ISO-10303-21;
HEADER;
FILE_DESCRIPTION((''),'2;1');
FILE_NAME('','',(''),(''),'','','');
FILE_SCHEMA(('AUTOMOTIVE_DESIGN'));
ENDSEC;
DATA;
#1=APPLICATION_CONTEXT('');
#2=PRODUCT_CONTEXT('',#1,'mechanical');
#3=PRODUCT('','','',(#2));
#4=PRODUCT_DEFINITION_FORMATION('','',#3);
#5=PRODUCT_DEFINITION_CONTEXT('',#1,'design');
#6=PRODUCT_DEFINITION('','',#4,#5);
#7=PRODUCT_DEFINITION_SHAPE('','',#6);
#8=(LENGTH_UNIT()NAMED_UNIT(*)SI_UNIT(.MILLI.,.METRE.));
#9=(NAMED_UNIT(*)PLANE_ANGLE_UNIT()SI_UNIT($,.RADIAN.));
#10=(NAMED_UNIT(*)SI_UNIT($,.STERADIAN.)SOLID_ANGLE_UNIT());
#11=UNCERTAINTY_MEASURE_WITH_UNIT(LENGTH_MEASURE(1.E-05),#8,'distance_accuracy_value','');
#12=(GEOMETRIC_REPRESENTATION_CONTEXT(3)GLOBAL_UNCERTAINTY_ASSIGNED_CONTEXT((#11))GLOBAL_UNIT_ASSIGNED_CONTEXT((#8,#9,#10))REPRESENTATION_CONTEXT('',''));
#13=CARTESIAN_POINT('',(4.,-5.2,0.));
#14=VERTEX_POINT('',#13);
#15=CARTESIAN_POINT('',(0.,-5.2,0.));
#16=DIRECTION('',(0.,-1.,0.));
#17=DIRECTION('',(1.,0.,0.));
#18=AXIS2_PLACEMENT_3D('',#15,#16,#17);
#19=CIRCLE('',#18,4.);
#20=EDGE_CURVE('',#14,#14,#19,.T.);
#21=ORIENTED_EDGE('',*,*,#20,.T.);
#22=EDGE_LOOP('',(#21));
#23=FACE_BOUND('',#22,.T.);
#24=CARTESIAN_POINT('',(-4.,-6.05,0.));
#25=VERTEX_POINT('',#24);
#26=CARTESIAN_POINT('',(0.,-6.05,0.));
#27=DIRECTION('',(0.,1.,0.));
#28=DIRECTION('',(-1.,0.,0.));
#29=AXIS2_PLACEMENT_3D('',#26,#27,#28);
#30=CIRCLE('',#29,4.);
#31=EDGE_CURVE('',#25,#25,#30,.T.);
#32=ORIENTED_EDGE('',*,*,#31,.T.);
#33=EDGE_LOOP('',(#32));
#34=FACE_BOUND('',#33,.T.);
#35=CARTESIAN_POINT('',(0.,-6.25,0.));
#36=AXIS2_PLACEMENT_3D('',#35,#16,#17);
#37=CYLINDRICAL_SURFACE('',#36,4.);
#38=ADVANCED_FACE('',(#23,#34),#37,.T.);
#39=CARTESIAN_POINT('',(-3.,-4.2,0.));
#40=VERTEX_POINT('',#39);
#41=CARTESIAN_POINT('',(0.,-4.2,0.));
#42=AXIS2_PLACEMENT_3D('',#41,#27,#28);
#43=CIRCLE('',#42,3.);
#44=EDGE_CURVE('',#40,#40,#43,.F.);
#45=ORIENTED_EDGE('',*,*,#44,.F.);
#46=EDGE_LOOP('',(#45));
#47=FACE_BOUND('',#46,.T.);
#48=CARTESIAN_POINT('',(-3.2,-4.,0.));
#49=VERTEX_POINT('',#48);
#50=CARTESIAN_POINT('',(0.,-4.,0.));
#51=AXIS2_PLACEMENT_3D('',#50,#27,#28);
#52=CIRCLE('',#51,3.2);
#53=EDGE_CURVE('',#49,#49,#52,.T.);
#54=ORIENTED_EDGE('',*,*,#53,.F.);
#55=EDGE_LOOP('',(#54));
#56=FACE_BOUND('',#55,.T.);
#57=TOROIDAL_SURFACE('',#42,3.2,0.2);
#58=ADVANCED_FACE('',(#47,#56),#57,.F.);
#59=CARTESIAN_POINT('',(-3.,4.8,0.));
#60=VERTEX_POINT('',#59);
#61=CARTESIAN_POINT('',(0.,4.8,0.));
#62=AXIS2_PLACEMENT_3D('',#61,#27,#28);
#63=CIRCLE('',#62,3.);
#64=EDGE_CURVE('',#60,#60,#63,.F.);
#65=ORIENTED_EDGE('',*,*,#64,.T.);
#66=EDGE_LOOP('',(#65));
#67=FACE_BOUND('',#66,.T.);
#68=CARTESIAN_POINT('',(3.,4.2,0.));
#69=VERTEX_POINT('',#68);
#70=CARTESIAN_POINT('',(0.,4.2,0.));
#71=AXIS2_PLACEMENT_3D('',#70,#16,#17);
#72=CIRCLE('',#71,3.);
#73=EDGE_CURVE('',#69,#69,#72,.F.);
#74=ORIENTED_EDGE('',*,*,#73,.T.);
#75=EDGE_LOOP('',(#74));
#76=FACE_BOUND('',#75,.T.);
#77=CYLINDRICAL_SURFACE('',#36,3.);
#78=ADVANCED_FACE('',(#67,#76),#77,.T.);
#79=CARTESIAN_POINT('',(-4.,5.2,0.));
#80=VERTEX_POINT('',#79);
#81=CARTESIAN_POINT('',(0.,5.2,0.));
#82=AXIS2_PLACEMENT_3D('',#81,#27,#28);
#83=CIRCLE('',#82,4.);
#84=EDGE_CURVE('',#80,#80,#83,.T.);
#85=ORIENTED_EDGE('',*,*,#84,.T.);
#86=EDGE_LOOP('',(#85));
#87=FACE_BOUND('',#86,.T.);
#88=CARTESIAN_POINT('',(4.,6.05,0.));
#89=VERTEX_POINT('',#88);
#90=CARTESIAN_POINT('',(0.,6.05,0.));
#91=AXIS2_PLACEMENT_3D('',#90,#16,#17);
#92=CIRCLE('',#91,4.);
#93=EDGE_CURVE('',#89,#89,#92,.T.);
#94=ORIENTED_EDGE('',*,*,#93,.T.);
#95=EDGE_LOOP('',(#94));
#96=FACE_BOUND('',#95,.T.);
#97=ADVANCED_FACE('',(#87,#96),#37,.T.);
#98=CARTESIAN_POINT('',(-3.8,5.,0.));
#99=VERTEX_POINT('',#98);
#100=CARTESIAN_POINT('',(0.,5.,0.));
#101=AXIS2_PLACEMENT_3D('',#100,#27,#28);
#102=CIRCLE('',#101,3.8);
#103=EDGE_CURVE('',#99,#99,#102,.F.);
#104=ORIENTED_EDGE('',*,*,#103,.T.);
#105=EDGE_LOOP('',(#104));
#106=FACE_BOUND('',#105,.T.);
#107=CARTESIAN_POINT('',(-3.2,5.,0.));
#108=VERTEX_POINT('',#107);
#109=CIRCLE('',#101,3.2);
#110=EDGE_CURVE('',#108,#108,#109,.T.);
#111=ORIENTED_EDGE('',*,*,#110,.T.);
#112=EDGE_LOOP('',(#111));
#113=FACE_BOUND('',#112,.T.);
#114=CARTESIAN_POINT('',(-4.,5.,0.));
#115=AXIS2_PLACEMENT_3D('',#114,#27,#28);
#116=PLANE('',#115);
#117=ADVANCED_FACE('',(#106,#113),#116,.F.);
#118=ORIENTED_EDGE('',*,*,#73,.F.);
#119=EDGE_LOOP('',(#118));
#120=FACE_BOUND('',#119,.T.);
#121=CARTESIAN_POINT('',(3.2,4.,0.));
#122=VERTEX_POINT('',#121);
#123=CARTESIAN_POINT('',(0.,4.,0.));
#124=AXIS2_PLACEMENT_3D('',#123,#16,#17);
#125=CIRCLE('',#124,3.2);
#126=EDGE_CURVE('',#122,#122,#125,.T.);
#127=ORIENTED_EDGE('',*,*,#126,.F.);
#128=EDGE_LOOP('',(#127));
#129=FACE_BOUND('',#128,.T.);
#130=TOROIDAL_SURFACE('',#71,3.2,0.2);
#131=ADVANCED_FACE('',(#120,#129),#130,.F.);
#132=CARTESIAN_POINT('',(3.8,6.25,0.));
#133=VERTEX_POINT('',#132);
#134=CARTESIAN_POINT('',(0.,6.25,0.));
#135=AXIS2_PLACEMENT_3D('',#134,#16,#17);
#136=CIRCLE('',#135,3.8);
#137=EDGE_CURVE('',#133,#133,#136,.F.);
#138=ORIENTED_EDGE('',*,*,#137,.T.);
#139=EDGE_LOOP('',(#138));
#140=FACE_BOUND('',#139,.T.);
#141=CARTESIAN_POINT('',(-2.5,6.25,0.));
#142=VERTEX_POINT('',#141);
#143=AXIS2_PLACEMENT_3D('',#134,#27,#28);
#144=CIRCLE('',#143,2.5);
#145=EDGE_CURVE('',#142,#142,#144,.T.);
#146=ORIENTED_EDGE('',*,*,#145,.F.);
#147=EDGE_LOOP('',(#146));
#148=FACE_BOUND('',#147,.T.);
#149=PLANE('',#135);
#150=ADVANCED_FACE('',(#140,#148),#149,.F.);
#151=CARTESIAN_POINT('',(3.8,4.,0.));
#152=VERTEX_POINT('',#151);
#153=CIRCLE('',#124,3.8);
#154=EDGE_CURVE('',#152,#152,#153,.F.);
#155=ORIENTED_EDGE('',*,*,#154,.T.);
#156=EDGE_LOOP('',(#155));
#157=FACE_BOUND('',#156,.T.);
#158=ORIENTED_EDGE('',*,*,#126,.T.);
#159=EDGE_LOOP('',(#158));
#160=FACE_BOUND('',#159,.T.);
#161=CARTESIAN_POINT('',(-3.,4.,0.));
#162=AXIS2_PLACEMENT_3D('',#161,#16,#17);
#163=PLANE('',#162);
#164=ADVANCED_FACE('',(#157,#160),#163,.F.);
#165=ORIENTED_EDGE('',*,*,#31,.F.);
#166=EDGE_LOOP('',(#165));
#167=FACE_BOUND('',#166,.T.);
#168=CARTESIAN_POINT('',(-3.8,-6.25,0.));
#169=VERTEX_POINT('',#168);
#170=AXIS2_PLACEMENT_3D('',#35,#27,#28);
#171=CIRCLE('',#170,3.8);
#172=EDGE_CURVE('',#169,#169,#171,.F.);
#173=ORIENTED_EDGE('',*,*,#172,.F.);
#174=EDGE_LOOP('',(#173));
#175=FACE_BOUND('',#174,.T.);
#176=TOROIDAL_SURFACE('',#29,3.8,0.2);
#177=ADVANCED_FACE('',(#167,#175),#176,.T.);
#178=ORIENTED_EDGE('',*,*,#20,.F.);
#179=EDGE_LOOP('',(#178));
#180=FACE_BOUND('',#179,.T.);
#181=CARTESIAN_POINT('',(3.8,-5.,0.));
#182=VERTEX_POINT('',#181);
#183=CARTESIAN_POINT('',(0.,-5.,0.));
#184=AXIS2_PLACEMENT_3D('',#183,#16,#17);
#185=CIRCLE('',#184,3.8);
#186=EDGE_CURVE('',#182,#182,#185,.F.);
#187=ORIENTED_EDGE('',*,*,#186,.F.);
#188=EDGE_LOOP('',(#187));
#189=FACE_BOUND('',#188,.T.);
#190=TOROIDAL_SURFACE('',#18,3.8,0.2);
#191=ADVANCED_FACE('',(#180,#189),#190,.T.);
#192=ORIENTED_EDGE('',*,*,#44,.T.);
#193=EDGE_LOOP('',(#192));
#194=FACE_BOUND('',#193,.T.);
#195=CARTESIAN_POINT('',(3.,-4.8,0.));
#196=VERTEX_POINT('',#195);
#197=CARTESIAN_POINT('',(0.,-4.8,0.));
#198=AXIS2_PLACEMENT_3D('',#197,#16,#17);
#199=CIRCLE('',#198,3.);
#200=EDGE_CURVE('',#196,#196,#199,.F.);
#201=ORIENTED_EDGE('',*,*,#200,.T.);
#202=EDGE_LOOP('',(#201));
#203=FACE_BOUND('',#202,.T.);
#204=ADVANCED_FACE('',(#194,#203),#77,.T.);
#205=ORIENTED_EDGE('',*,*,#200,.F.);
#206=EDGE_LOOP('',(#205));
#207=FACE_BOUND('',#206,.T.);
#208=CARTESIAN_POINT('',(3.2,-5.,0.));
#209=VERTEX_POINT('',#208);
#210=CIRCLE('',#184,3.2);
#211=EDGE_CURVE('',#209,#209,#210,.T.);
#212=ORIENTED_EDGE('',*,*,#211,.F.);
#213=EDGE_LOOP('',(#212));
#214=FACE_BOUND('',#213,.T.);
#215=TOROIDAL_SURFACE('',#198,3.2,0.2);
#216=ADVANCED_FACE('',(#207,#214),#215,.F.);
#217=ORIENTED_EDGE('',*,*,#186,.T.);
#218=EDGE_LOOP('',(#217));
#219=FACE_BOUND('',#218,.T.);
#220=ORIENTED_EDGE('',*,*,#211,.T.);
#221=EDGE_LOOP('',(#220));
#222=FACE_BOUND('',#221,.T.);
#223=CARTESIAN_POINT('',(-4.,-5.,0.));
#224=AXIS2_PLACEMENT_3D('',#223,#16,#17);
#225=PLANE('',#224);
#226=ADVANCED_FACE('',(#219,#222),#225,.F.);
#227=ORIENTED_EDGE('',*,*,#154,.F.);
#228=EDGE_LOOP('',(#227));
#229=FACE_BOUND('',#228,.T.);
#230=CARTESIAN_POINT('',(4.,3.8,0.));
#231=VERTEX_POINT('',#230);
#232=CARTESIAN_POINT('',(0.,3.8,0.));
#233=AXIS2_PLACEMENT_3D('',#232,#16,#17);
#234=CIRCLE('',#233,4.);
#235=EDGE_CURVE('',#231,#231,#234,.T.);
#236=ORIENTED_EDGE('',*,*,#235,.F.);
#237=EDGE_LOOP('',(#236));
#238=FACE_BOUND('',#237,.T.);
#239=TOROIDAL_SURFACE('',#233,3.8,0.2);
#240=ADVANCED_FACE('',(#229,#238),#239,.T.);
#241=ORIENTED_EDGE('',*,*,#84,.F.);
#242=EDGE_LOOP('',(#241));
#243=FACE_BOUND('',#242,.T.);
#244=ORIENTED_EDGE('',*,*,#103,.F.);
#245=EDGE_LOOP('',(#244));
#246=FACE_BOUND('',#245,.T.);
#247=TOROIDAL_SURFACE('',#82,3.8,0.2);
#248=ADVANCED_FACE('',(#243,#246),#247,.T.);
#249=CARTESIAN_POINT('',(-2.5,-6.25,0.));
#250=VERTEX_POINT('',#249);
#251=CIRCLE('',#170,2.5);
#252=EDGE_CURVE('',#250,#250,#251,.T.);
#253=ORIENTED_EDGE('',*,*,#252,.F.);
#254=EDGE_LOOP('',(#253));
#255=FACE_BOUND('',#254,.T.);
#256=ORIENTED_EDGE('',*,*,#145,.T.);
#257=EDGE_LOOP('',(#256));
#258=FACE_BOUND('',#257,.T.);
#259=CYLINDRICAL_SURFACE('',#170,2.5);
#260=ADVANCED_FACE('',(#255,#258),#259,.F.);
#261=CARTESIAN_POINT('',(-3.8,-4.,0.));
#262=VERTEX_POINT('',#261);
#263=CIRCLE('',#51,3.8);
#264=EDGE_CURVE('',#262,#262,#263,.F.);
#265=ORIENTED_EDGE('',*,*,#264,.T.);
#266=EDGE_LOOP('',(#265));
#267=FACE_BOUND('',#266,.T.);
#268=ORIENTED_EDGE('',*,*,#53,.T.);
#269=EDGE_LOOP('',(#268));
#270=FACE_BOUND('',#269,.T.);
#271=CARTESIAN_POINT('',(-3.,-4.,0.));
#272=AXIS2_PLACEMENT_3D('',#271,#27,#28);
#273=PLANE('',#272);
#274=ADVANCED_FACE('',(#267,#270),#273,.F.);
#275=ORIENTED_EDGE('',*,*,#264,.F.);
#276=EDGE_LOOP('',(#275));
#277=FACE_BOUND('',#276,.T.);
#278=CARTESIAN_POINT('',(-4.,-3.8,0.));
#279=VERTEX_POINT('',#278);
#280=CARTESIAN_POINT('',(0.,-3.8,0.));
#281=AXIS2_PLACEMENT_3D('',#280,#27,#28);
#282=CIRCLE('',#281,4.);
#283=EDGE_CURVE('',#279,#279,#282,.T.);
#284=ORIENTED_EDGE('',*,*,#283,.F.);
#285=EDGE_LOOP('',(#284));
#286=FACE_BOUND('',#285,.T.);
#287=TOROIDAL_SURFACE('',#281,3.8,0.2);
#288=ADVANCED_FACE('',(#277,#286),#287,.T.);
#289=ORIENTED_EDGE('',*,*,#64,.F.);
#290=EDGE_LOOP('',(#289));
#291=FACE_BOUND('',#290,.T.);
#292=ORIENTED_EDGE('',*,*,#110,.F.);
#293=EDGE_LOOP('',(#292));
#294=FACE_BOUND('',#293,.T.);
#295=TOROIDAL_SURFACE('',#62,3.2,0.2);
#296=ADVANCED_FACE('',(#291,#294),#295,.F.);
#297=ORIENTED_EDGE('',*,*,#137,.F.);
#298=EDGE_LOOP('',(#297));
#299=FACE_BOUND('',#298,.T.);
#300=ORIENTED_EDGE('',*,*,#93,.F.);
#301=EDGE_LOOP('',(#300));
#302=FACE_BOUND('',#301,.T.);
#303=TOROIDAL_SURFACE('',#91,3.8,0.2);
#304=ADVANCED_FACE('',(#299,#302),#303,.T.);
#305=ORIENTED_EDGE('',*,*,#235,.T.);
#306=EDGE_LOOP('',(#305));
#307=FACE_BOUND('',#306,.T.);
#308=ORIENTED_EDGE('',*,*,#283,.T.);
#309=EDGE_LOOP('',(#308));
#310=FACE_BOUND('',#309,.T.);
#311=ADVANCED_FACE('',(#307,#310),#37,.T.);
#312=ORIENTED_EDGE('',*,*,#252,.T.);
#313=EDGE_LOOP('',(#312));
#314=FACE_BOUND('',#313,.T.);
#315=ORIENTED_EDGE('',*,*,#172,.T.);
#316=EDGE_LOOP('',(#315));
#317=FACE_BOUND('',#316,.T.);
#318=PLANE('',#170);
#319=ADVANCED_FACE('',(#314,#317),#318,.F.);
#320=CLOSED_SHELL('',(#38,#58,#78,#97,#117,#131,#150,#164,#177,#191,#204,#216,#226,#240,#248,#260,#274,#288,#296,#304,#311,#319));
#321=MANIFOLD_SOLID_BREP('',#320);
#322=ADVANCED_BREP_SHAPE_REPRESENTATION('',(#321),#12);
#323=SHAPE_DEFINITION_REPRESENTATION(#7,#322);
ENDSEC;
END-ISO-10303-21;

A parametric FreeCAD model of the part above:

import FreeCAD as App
import Part
import Sketcher

V = App.Vector


def edges_at(feature, points):
    """Names of the edges that pass closest to the given points."""
    edges = feature.Shape.Edges
    near = lambda p: min(range(len(edges)), key=lambda i: edges[i].distToShape(Part.Vertex(*p))[0])
    return sorted({f"Edge{near(p) + 1}" for p in points})


def add_polygon(sketch, points):
    """Adds a closed chain of lines whose ends are joined by coincident constraints."""
    first, n = sketch.GeometryCount, len(points)
    for a, b in zip(points, points[1:] + points[:1]):
        sketch.addGeometry(Part.LineSegment(App.Vector(*a, 0), App.Vector(*b, 0)), False)
    for i in range(n):
        sketch.addConstraint(Sketcher.Constraint("Coincident", first + i, 2, first + (i + 1) % n, 1))

doc = App.newDocument("Part")
body = doc.addObject("PartDesign::Body", "Body")

sketch1 = doc.addObject("Sketcher::SketchObject", "Sketch")
body.addObject(sketch1)
sketch1.AttachmentSupport = (doc.XY_Plane, [""])
sketch1.MapMode = "FlatFace"
add_polygon(sketch1, [(0, 6.2), (-4, 6.2), (-4, 5), (-3, 5), (-3, 4), (-4, 4), (-4, -4), (-3, -4), (-3, -5), (-4, -5), (-4, -6.2), (0, -6.2)])
sketch1.addConstraint(Sketcher.Constraint("Horizontal", 0))
sketch1.addConstraint(Sketcher.Constraint("Vertical", 1))
sketch1.addConstraint(Sketcher.Constraint("Horizontal", 2))
sketch1.addConstraint(Sketcher.Constraint("Vertical", 3))
sketch1.addConstraint(Sketcher.Constraint("Horizontal", 4))
sketch1.addConstraint(Sketcher.Constraint("Vertical", 5))
sketch1.addConstraint(Sketcher.Constraint("Horizontal", 6))
sketch1.addConstraint(Sketcher.Constraint("Vertical", 7))
sketch1.addConstraint(Sketcher.Constraint("Horizontal", 8))
sketch1.addConstraint(Sketcher.Constraint("Vertical", 9))
sketch1.addConstraint(Sketcher.Constraint("Horizontal", 10))
sketch1.addConstraint(Sketcher.Constraint("Vertical", 11))
sketch1.addConstraint(Sketcher.Constraint("Symmetric", 10, 2, 11, 2, -1, 1))
sketch1.addConstraint(Sketcher.Constraint("Symmetric", 3, 2, 6, 2, -1))
sketch1.addConstraint(Sketcher.Constraint("Symmetric", 1, 2, 8, 2, -1))
sketch1.addConstraint(Sketcher.Constraint("Vertical", 1, 2, 4, 2))
sketch1.addConstraint(Sketcher.Constraint("Equal", 8, 3))
sketch1.addConstraint(Sketcher.Constraint("DistanceX", 0, 2, 0, 1, 4.0))
sketch1.addConstraint(Sketcher.Constraint("DistanceX", 2, 1, 2, 2, 1.0))
sketch1.addConstraint(Sketcher.Constraint("DistanceY", 5, 2, 5, 1, 8.0))
sketch1.addConstraint(Sketcher.Constraint("DistanceY", 11, 1, 11, 2, 12.5))
revolution = doc.addObject("PartDesign::Revolution", "Revolution")
body.addObject(revolution)
revolution.Profile = sketch1
revolution.ReferenceAxis = (sketch1, ["V_Axis"])
revolution.Angle = 360
doc.recompute()

fillet = doc.addObject("PartDesign::Fillet", "Fillet")
body.addObject(fillet)
fillet.Base = (revolution, edges_at(revolution, [
    (-3, -4, 0),
    (-4, -4, 0),
    (-4, 4, 0),
    (-3, 4, 0),
    (-3, 5, 0),
    (-4, 5, 0),
    (-4, 6.25, 0),
    (-4, -6.25, 0),
    (-4, -5, 0),
    (-3, -5, 0),
]))
fillet.Radius = 0.2

sketch2 = doc.addObject("Sketcher::SketchObject", "Sketch001")
body.addObject(sketch2)
sketch2.AttachmentSupport = (doc.XZ_Plane, [""])
sketch2.MapMode = "FlatFace"
sketch2.AttachmentOffset = App.Placement(V(0, 0, -6.25), App.Rotation())
sketch2.addGeometry(Part.Circle(V(0, 0, 0), V(0, 0, 1), 2.5), False)
sketch2.addConstraint(Sketcher.Constraint("Coincident", 0, 3, -1, 1))
sketch2.addConstraint(Sketcher.Constraint("Diameter", 0, 5.0))
pocket1 = doc.addObject("PartDesign::Pocket", "Pocket")
body.addObject(pocket1)
pocket1.Profile = sketch2
pocket1.Type = "ThroughAll"
pocket1.Reversed = True

doc.recompute()
